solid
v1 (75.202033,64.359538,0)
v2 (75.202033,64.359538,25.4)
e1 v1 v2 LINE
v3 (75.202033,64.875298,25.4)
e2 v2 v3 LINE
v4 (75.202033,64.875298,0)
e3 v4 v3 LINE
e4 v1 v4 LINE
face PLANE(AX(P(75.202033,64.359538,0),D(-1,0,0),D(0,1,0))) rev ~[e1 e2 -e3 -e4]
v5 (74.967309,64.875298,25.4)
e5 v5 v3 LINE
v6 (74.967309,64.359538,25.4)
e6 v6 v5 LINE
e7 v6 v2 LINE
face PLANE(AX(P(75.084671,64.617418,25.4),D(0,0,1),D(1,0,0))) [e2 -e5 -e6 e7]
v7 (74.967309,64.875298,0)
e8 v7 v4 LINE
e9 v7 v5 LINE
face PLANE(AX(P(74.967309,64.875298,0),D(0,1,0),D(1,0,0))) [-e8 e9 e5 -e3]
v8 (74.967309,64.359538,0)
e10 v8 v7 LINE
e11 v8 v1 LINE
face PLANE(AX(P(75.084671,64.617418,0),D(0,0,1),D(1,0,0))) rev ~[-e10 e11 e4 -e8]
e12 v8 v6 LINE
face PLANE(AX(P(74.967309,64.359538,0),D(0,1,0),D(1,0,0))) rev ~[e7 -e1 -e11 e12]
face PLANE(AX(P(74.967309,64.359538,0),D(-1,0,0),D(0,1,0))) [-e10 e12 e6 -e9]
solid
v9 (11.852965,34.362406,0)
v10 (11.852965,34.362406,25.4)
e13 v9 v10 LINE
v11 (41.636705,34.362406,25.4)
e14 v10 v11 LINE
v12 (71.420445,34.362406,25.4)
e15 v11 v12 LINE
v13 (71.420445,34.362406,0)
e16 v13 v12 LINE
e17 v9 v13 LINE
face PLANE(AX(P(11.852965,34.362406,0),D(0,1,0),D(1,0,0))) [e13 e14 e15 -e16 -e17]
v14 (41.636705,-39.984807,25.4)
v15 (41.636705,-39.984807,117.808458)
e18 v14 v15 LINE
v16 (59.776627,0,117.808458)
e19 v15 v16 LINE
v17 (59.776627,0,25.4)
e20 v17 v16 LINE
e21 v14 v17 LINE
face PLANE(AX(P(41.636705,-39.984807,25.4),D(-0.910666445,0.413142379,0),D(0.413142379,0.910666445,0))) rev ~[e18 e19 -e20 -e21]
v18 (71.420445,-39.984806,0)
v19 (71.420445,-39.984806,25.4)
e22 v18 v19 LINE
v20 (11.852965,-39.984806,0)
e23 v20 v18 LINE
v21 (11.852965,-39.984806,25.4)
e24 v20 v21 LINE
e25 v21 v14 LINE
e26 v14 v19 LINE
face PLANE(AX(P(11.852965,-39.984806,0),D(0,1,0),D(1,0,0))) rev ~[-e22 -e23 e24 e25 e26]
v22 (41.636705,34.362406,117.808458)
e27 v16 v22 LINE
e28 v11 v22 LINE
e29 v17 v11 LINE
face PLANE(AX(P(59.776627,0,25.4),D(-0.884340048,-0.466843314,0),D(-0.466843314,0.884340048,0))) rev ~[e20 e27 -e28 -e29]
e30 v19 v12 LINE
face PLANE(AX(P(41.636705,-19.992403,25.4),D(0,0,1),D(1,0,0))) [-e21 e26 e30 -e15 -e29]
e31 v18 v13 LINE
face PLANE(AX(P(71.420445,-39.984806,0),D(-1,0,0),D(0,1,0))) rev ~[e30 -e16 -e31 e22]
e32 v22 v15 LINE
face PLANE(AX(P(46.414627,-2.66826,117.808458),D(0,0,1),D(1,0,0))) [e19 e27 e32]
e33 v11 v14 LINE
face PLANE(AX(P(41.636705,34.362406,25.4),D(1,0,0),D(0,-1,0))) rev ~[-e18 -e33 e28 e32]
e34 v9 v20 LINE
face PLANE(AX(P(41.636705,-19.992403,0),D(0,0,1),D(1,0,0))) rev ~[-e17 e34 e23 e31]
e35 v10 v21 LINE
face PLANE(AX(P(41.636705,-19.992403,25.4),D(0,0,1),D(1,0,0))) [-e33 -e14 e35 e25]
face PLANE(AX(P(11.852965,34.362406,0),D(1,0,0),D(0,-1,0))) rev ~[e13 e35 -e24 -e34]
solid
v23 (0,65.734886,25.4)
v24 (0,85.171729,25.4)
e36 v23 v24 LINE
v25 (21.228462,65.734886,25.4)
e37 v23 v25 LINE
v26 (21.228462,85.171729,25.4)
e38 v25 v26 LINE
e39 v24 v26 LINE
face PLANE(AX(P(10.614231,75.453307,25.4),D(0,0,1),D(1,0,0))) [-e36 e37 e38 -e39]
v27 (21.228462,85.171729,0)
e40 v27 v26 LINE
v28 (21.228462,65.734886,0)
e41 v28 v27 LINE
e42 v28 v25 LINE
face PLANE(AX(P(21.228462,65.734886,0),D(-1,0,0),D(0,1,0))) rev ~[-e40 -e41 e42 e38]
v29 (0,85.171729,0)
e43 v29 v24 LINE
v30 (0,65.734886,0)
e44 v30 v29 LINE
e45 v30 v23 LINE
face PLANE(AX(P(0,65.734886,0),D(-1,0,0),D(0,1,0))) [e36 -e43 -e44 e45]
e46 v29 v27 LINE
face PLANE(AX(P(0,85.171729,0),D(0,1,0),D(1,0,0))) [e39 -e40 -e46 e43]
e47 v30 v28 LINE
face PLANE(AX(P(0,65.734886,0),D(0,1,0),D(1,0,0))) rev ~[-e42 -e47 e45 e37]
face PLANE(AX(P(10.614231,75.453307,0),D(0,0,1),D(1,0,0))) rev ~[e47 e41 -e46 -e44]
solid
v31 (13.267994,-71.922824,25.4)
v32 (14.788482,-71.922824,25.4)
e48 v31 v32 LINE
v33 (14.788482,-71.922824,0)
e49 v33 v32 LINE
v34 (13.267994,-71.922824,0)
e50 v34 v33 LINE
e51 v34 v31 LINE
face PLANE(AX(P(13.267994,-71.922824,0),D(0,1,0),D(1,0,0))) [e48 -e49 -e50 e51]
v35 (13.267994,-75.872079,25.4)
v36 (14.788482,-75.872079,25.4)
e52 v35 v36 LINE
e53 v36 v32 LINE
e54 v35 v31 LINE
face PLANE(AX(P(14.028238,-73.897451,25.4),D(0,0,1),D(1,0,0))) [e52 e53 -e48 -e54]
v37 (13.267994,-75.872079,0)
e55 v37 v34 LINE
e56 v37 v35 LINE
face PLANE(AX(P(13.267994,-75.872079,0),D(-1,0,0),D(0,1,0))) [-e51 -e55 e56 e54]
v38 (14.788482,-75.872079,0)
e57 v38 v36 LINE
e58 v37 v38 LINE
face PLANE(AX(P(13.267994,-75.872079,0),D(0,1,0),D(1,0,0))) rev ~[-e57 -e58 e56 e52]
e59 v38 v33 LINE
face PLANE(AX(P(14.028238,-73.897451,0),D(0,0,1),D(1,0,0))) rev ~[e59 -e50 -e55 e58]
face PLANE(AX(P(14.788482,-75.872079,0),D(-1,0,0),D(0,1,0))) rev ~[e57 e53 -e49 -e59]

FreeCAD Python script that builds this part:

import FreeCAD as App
import Part
import Sketcher
Q = App.Units.Quantity


def add_polygon(sketch, points):
    """Adds a closed chain of lines whose ends are joined by coincident constraints."""
    first, n = sketch.GeometryCount, len(points)
    for a, b in zip(points, points[1:] + points[:1]):
        sketch.addGeometry(Part.LineSegment(App.Vector(*a, 0), App.Vector(*b, 0)), False)
    for i in range(n):
        sketch.addConstraint(Sketcher.Constraint("Coincident", first + i, 2, first + (i + 1) % n, 1))

doc = App.newDocument("Part")
body = doc.addObject("PartDesign::Body", "Body")
body.AllowCompound = True

sketch1 = doc.addObject("Sketcher::SketchObject", "Sketch")
body.addObject(sketch1)
sketch1.AttachmentSupport = (doc.XY_Plane, [""])
sketch1.MapMode = "FlatFace"
add_polygon(sketch1, [(11.852965, -39.984806), (71.420445, -39.984806), (71.420445, 34.362406), (11.852965, 34.362406)])
add_polygon(sketch1, [(74.967309, 64.875298), (74.967309, 64.359538), (75.202033, 64.359538), (75.202033, 64.875298)])
add_polygon(sketch1, [(13.267994, -71.922824), (13.267994, -75.872079), (14.788482, -75.872079), (14.788482, -71.922824)])
add_polygon(sketch1, [(0, 85.171729), (0, 65.734886), (21.228462, 65.734886), (21.228462, 85.171729)])
sketch1.addConstraint([
    Sketcher.Constraint("Horizontal", 0),
    Sketcher.Constraint("Vertical", 1),
    Sketcher.Constraint("Horizontal", 2),
    Sketcher.Constraint("Vertical", 3),
    Sketcher.Constraint("Vertical", 4),
    Sketcher.Constraint("Horizontal", 5),
    Sketcher.Constraint("Vertical", 6),
    Sketcher.Constraint("Horizontal", 7),
    Sketcher.Constraint("Vertical", 8),
    Sketcher.Constraint("Horizontal", 9),
    Sketcher.Constraint("Vertical", 10),
    Sketcher.Constraint("Horizontal", 11),
    Sketcher.Constraint("Vertical", 12),
    Sketcher.Constraint("Horizontal", 13),
    Sketcher.Constraint("Vertical", 14),
    Sketcher.Constraint("Horizontal", 15),
    Sketcher.Constraint("PointOnObject", 12, 2, -2),
    Sketcher.Constraint("DistanceX", 0, 1, 0, 2, 59.567481),
    Sketcher.Constraint("DistanceX", 9, 1, 9, 2, 1.520488),
    Sketcher.Constraint("DistanceY", 4, 2, 4, 1, 0.515759),
    Sketcher.Constraint("DistanceX", 5, 1, 5, 2, 0.234723),
    Sketcher.Constraint("DistanceX", 13, 1, 13, 2, 21.228462),
    Sketcher.Constraint("DistanceY", 1, 1, 1, 2, 74.347212),
    Sketcher.Constraint("DistanceY", 8, 2, 8, 1, 3.949255),
    Sketcher.Constraint("DistanceY", 12, 2, 12, 1, 19.436843),
    Sketcher.Constraint("DistanceX", -1, 1, 4, 2, 74.967309),
    Sketcher.Constraint("DistanceY", -1, 1, 4, 2, 64.359538),
    Sketcher.Constraint("DistanceY", 8, 2, -1, 1, 75.872079),
    Sketcher.Constraint("DistanceY", -1, 1, 14, 2, 85.171729),
    Sketcher.Constraint("DistanceX", 2, 2, 5, 2, 63.349068),
    Sketcher.Constraint("DistanceY", 1, 2, 6, 2, 30.512892),
    Sketcher.Constraint("DistanceX", 3, 2, 8, 2, 1.415029),
])
pad1 = doc.addObject("PartDesign::Pad", "Pad")
body.addObject(pad1)
pad1.Profile = sketch1
pad1.Length = Q("1 in")

sketch2 = doc.addObject("Sketcher::SketchObject", "Sketch001")
body.addObject(sketch2)
sketch2.AttachmentSupport = (doc.XY_Plane, [""])
sketch2.MapMode = "FlatFace"
sketch2.AttachmentOffset = App.Placement(App.Vector(0, 0, 1 * 25.4), App.Rotation())
add_polygon(sketch2, [(41.636705, 34.362406), (41.636705, -39.984807), (59.776627, 0)])
sketch2.addConstraint([
    Sketcher.Constraint("Vertical", 0),
    Sketcher.Constraint("PointOnObject", 1, 2, -1),
    Sketcher.Constraint("DistanceY", 0, 2, 0, 1, 74.347213),
    Sketcher.Constraint("DistanceX", 0, 2, 1, 2, 18.139922),
    Sketcher.Constraint("Distance", 1, 43.907193),
    Sketcher.Constraint("DistanceX", -1, 1, 0, 2, 41.636705),
])
pad2 = doc.addObject("PartDesign::Pad", "Pad001")
body.addObject(pad2)
pad2.Profile = sketch2
pad2.Length = 92.408458

doc.recompute()
